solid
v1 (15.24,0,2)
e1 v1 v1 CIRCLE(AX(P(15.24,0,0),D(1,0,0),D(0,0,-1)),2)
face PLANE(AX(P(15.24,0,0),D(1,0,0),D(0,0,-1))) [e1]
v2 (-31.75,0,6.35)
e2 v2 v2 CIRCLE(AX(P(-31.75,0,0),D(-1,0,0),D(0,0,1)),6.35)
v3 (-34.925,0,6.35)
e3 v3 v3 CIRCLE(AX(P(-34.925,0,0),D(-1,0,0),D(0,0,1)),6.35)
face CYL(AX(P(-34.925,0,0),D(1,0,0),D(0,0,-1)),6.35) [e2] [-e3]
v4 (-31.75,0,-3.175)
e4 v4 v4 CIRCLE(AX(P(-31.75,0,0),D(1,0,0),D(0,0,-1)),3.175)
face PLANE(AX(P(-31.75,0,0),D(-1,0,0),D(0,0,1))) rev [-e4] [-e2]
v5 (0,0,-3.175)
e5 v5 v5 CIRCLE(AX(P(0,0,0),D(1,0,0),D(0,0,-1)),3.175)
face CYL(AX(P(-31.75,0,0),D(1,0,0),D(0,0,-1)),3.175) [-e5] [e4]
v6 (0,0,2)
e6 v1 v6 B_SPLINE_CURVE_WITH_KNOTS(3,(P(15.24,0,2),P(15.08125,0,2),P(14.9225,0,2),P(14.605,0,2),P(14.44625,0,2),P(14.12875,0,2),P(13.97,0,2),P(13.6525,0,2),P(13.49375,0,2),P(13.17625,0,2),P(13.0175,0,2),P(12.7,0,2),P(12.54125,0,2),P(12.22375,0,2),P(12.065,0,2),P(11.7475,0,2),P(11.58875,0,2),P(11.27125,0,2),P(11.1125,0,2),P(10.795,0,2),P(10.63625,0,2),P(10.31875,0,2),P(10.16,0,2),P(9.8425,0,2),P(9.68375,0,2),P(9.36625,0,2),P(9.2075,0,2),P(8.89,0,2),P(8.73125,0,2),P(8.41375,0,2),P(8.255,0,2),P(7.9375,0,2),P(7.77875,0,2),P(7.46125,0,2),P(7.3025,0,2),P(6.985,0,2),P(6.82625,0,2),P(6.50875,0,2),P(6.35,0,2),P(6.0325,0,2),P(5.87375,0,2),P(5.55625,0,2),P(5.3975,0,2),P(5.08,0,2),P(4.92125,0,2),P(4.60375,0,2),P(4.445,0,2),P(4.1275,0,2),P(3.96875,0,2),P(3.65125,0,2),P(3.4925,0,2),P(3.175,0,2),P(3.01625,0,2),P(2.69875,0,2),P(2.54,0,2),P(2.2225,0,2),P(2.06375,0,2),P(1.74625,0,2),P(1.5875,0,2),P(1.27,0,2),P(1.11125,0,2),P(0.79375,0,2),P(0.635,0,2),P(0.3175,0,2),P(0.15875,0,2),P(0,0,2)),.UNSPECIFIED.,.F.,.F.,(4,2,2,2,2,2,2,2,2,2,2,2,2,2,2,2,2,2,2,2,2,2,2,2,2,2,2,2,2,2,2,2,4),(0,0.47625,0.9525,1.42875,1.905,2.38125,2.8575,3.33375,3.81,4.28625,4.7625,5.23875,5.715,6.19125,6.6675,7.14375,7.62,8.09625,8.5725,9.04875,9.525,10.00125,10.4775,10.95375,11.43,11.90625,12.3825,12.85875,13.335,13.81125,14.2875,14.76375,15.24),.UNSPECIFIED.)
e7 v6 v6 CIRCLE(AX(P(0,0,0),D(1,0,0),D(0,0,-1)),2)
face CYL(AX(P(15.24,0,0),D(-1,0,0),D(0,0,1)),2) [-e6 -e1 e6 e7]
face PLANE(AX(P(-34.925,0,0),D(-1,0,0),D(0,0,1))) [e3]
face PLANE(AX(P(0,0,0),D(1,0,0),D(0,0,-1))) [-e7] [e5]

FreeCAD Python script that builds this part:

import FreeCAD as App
import Part
import Sketcher
from FreeCAD import Vector
Q = App.Units.Quantity

doc = App.newDocument("Part")
params = doc.addObject("Spreadsheet::Sheet", "Params")
for row, (alias, value) in enumerate([
    ("pad1_length", "0.6 in"),
    ("sketch2_diameter", "0.25 in"),
    ("pad2_length", "1.25 in"),
    ("sketch3_diameter", "0.5 in"),
    ("pad3_length", "0.125 in"),
], start=1):
    params.set(f"A{row}", alias)
    params.set(f"B{row}", "=" + value)
    params.setAlias(f"B{row}", alias)

body = doc.addObject("PartDesign::Body", "Body")

# Sketch on YZ plane
sketch1 = body.newObject("Sketcher::SketchObject", "Sketch")
sketch1.AttachmentSupport = (doc.getObject("YZ_Plane"), [""])
sketch1.MapMode = "FlatFace"
sketch1.addGeometry(Part.Circle(Vector(0, 0, 0), Vector(0, 0, 1), 2), False)
sketch1.addConstraint(Sketcher.Constraint("Coincident", 0, 3, -1, 1))
sketch1.addConstraint(Sketcher.Constraint("Diameter", 0, Q("4 mm")))
pad1 = body.newObject("PartDesign::Pad", "Pad")
pad1.Profile = sketch1
pad1.setExpression("Length", "Params.pad1_length")

# Sketch on YZ plane
sketch2 = body.newObject("Sketcher::SketchObject", "Sketch001")
sketch2.AttachmentSupport = (doc.getObject("YZ_Plane"), [""])
sketch2.MapMode = "FlatFace"
sketch2.AttachmentOffset = App.Placement(Vector(0, 0, -1.25 * 25.4), App.Rotation())
sketch2.addGeometry(Part.Circle(Vector(0, 0, 0), Vector(0, 0, 1), 3.2), False)
sketch2.addConstraint(Sketcher.Constraint("Coincident", 0, 3, -1, 1))
sketch2.addConstraint(Sketcher.Constraint("Diameter", 0, Q("0.25 in")))
sketch2.setExpression("Constraints[1]", "Params.sketch2_diameter")
pad2 = body.newObject("PartDesign::Pad", "Pad001")
pad2.Profile = sketch2
pad2.setExpression("Length", "Params.pad2_length")

# Sketch on YZ plane
sketch3 = body.newObject("Sketcher::SketchObject", "Sketch002")
sketch3.AttachmentSupport = (doc.getObject("YZ_Plane"), [""])
sketch3.MapMode = "FlatFace"
sketch3.AttachmentOffset = App.Placement(Vector(0, 0, -1.25 * 25.4), App.Rotation())
sketch3.addGeometry(Part.Circle(Vector(0, 0, 0), Vector(0, 0, 1), 6), False)
sketch3.addConstraint(Sketcher.Constraint("Coincident", 0, 3, -1, 1))
sketch3.addConstraint(Sketcher.Constraint("Diameter", 0, Q("0.5 in")))
sketch3.setExpression("Constraints[1]", "Params.sketch3_diameter")
pad3 = body.newObject("PartDesign::Pad", "Pad002")
pad3.Profile = sketch3
pad3.setExpression("Length", "Params.pad3_length")
pad3.Reversed = True

doc.recompute()
